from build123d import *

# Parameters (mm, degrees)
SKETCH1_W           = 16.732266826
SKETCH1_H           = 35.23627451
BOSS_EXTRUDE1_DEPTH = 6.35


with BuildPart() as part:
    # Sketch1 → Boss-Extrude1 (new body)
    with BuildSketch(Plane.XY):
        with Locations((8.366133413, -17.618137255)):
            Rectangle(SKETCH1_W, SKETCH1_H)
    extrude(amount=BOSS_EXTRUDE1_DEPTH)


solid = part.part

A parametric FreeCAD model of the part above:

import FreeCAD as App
import Part
import Sketcher

V = App.Vector


def add_polygon(sketch, points):
    """Adds a closed chain of lines whose ends are joined by coincident constraints."""
    first, n = sketch.GeometryCount, len(points)
    for a, b in zip(points, points[1:] + points[:1]):
        sketch.addGeometry(Part.LineSegment(App.Vector(*a, 0), App.Vector(*b, 0)), False)
    for i in range(n):
        sketch.addConstraint(Sketcher.Constraint("Coincident", first + i, 2, first + (i + 1) % n, 1))

doc = App.newDocument("Part")
params = doc.addObject("Spreadsheet::Sheet", "Params")
for row, (alias, value) in enumerate([
    ("pad1_length", "0.25 in"),
], start=1):
    params.set(f"A{row}", alias)
    params.set(f"B{row}", "=" + value)
    params.setAlias(f"B{row}", alias)

body = doc.addObject("PartDesign::Body", "Body")

# Sketch on XY plane
sketch1 = body.newObject("Sketcher::SketchObject", "Sketch")
sketch1.AttachmentSupport = (doc.getObject("XY_Plane"), [""])
sketch1.MapMode = "FlatFace"
add_polygon(sketch1, [(0, 0), (0, -35.236275), (16.732267, -35.236275), (16.732267, 0)])  # lines 0-3
sketch1.addConstraint([
    Sketcher.Constraint("Vertical", 0),
    Sketcher.Constraint("Horizontal", 1),
    Sketcher.Constraint("Vertical", 2),
    Sketcher.Constraint("Horizontal", 3),
    Sketcher.Constraint("Coincident", 3, 2, -1, 1),
    Sketcher.Constraint("DistanceX", 1, 1, 1, 2, 16.732267),
    Sketcher.Constraint("DistanceY", 0, 2, 0, 1, 35.236275),
])
pad1 = body.newObject("PartDesign::Pad", "Pad")
pad1.Profile = sketch1
pad1.setExpression("Length", "Params.pad1_length")

doc.recompute()
